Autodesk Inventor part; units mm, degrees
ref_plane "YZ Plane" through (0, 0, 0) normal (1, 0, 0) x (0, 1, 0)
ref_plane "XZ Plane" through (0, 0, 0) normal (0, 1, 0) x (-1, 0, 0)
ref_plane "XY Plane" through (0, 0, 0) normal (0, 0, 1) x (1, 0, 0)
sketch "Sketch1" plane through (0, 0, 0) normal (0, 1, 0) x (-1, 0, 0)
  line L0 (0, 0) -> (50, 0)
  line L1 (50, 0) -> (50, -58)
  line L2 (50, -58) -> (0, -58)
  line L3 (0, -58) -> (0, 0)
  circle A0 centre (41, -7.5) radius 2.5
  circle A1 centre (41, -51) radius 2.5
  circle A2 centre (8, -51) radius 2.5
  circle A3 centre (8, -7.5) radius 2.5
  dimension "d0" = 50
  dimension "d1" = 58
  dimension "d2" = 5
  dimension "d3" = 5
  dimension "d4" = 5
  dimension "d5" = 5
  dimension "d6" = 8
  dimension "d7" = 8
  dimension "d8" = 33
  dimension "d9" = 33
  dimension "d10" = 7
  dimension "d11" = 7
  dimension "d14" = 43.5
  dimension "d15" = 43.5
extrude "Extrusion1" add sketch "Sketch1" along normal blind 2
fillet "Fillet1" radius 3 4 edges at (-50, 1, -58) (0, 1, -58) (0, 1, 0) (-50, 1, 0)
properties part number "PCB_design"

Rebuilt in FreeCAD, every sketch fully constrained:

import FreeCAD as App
import Part
import Sketcher
from FreeCAD import Vector
Q = App.Units.Quantity


def edges_at(feature, points):
    """Names of the edges that pass closest to the given points."""
    edges = feature.Shape.Edges
    near = lambda p: min(range(len(edges)), key=lambda i: edges[i].distToShape(Part.Vertex(*p))[0])
    return sorted({f"Edge{near(p) + 1}" for p in points})


def add_polygon(sketch, points):
    """Adds a closed chain of lines whose ends are joined by coincident constraints."""
    first, n = sketch.GeometryCount, len(points)
    for a, b in zip(points, points[1:] + points[:1]):
        sketch.addGeometry(Part.LineSegment(App.Vector(*a, 0), App.Vector(*b, 0)), False)
    for i in range(n):
        sketch.addConstraint(Sketcher.Constraint("Coincident", first + i, 2, first + (i + 1) % n, 1))

doc = App.newDocument("Part")
body = doc.addObject("PartDesign::Body", "Body")

# Sketch on XZ plane
sketch1 = body.newObject("Sketcher::SketchObject", "Sketch")
sketch1.AttachmentSupport = (doc.getObject("XZ_Plane"), [""])
sketch1.MapMode = "FlatFace"
add_polygon(sketch1, [(-50, 0), (0, 0), (0, -58), (-50, -58)])  # lines 0-3
sketch1.addGeometry(Part.Circle(Vector(-8, -51, 0), Vector(0, 0, 1), 2.5), False)  # 4
sketch1.addGeometry(Part.Circle(Vector(-41, -51, 0), Vector(0, 0, 1), 2.5), False)  # 5
sketch1.addGeometry(Part.Circle(Vector(-8, -7.5, 0), Vector(0, 0, 1), 2.5), False)  # 6
sketch1.addGeometry(Part.Circle(Vector(-41, -7.5, 0), Vector(0, 0, 1), 2.5), False)  # 7
sketch1.addConstraint(Sketcher.Constraint("Horizontal", 0))
sketch1.addConstraint(Sketcher.Constraint("Vertical", 1))
sketch1.addConstraint(Sketcher.Constraint("Horizontal", 2))
sketch1.addConstraint(Sketcher.Constraint("Vertical", 3))
sketch1.addConstraint(Sketcher.Constraint("Coincident", 0, 2, -1, 1))
sketch1.addConstraint(Sketcher.Constraint("Equal", 4, 5))
sketch1.addConstraint(Sketcher.Constraint("Equal", 5, 6))
sketch1.addConstraint(Sketcher.Constraint("Equal", 6, 7))
sketch1.addConstraint(Sketcher.Constraint("Horizontal", 4, 3, 5, 3))
sketch1.addConstraint(Sketcher.Constraint("Horizontal", 6, 3, 7, 3))
sketch1.addConstraint(Sketcher.Constraint("Vertical", 4, 3, 6, 3))
sketch1.addConstraint(Sketcher.Constraint("Vertical", 5, 3, 7, 3))
sketch1.addConstraint(Sketcher.Constraint("Diameter", 4, Q("5 mm")))
sketch1.addConstraint(Sketcher.Constraint("DistanceX", 0, 1, 0, 2, Q("50 mm")))
sketch1.addConstraint(Sketcher.Constraint("DistanceY", 1, 2, 1, 1, Q("58 mm")))
sketch1.addConstraint(Sketcher.Constraint("DistanceX", 4, 3, -1, 1, Q("8 mm")))
sketch1.addConstraint(Sketcher.Constraint("DistanceX", 5, 3, 4, 3, Q("33 mm")))
sketch1.addConstraint(Sketcher.Constraint("DistanceY", 1, 2, 4, 3, Q("7 mm")))
sketch1.addConstraint(Sketcher.Constraint("DistanceY", 4, 3, 6, 3, Q("43.5 mm")))
pad1 = body.newObject("PartDesign::Pad", "Pad")
pad1.Profile = sketch1
pad1.Length = 2
pad1.Reversed = True
doc.recompute()

fillet = body.newObject("PartDesign::Fillet", "Fillet")
fillet.Base = (pad1, edges_at(pad1, [
    (-50, 1, -58),
    (0, 1, -58),
    (0, 1, 0),
    (-50, 1, 0),
]))
fillet.Radius = 3

doc.recompute()
